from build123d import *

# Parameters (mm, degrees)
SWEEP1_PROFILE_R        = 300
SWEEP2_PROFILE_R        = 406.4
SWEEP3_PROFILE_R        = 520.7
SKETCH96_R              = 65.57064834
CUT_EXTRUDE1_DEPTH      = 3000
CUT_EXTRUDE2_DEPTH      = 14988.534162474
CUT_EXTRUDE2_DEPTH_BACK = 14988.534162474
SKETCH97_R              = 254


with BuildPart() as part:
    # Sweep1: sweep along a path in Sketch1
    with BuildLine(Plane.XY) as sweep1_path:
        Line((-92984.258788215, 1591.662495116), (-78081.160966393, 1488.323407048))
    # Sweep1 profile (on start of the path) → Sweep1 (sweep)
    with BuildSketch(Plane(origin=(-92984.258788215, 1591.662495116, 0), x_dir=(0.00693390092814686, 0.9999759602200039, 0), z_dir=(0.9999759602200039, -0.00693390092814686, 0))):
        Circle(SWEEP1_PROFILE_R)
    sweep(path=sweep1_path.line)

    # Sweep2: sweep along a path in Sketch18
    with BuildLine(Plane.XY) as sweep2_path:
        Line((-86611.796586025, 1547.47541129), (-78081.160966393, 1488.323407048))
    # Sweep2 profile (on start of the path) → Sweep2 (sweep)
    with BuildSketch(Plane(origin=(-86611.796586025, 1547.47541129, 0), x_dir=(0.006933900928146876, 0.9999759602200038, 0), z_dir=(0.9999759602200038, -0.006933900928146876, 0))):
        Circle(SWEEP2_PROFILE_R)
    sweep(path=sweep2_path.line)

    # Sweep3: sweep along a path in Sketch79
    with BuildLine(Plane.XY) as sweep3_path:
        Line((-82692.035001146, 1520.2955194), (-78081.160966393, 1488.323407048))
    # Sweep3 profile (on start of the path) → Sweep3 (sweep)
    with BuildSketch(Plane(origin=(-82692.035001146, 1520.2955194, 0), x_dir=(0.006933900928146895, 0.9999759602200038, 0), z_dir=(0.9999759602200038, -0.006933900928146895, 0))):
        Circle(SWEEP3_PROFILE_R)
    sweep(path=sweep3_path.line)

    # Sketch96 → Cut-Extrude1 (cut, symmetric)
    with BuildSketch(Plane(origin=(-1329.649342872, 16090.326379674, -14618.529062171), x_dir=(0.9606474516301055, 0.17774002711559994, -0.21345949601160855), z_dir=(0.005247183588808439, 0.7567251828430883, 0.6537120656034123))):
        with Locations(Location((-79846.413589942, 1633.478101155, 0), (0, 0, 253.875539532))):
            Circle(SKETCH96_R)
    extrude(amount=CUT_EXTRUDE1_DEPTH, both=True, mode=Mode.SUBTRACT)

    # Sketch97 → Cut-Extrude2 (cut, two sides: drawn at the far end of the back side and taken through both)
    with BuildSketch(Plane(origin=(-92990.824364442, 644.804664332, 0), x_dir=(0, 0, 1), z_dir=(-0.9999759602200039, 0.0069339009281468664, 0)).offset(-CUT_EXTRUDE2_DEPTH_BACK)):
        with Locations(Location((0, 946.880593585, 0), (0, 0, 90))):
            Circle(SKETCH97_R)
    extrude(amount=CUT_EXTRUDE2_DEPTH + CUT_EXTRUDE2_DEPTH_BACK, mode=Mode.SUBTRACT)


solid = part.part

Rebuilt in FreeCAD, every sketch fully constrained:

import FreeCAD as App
import Part
import Sketcher
from FreeCAD import Vector
Q = App.Units.Quantity

doc = App.newDocument("Part")
body = doc.addObject("PartDesign::Body", "Body")

# Sketch on an angled plane
sketch1 = doc.addObject("Sketcher::SketchObject", "Sketch")
body.addObject(sketch1)
sketch1.Placement = App.Placement(Vector(-92984.258788, 1591.662495, 0), App.Rotation(Vector(0.006933901, 0.99997596, 0), Vector(0, 0, 1), Vector(0.99997596, -0.006933901, 0), "ZXY"))
sketch1.addGeometry(Part.Circle(Vector(0, 0, 0), Vector(0, 0, 1), 300), False)
sketch1.addConstraint([
    Sketcher.Constraint("Coincident", 0, 3, -1, 1),
    Sketcher.Constraint("Diameter", 0, 600.0),
])

# Sketch on an angled plane
sketch2 = doc.addObject("Sketcher::SketchObject", "Sketch001")
body.addObject(sketch2)
sketch2.Placement = App.Placement(Vector(6.565576, 946.857831, 0), App.Rotation(Vector(0.99997596, -0.006933901, 0), Vector(0, 0, 1), Vector(-0.006933901, -0.99997596, 0), "ZXY"))
sketch2.addGeometry(Part.LineSegment(Vector(-92993.059856, 0, 0), Vector(-78089.603765, 0, 0)), False)
sketch2.addConstraint([
    Sketcher.Constraint("Horizontal", 0),
    Sketcher.Constraint("PointOnObject", 0, 1, -1),
    Sketcher.Constraint("DistanceX", 0, 1, 0, 2, 14903.456091),
    Sketcher.Constraint("DistanceX", 0, 1, -1, 1, 92993.059856),
])
doc.recompute()

additivepipe = doc.addObject("PartDesign::AdditivePipe", "AdditivePipe")
body.addObject(additivepipe)
additivepipe.Profile = sketch1
additivepipe.Spine = (sketch2, ["Edge1"])

# Sketch on an angled plane
sketch3 = doc.addObject("Sketcher::SketchObject", "Sketch002")
body.addObject(sketch3)
sketch3.Placement = App.Placement(Vector(-86611.796586, 1547.475411, 0), App.Rotation(Vector(0.006933901, 0.99997596, 0), Vector(0, 0, 1), Vector(0.99997596, -0.006933901, 0), "ZXY"))
sketch3.addGeometry(Part.Circle(Vector(0, 0, 0), Vector(0, 0, 1), 406.4), False)
sketch3.addConstraint([
    Sketcher.Constraint("Coincident", 0, 3, -1, 1),
    Sketcher.Constraint("Diameter", 0, Q("32 in")),
])

# Sketch on an angled plane
sketch4 = doc.addObject("Sketcher::SketchObject", "Sketch003")
body.addObject(sketch4)
sketch4.Placement = App.Placement(Vector(6.565576, 946.857831, 0), App.Rotation(Vector(0.99997596, -0.006933901, 0), Vector(0, 0, 1), Vector(-0.006933901, -0.99997596, 0), "ZXY"))
sketch4.addGeometry(Part.LineSegment(Vector(-86620.444461, 0, 0), Vector(-78089.603765, 0, 0)), False)
sketch4.addConstraint([
    Sketcher.Constraint("Horizontal", 0),
    Sketcher.Constraint("PointOnObject", 0, 1, -1),
    Sketcher.Constraint("DistanceX", 0, 1, 0, 2, 8530.840695),
    Sketcher.Constraint("DistanceX", 0, 1, -1, 1, 86620.444461),
])
doc.recompute()

additivepipe2 = doc.addObject("PartDesign::AdditivePipe", "AdditivePipe001")
body.addObject(additivepipe2)
additivepipe2.Profile = sketch3
additivepipe2.Spine = (sketch4, ["Edge1"])

# Sketch on an angled plane
sketch5 = doc.addObject("Sketcher::SketchObject", "Sketch004")
body.addObject(sketch5)
sketch5.Placement = App.Placement(Vector(-82692.035001, 1520.295519, 0), App.Rotation(Vector(0.006933901, 0.99997596, 0), Vector(0, 0, 1), Vector(0.99997596, -0.006933901, 0), "ZXY"))
sketch5.addGeometry(Part.Circle(Vector(0, 0, 0), Vector(0, 0, 1), 520.7), False)
sketch5.addConstraint([
    Sketcher.Constraint("Coincident", 0, 3, -1, 1),
    Sketcher.Constraint("Diameter", 0, Q("41 in")),
])

# Sketch on an angled plane
sketch6 = doc.addObject("Sketcher::SketchObject", "Sketch005")
body.addObject(sketch6)
sketch6.Placement = App.Placement(Vector(6.565576, 946.857831, 0), App.Rotation(Vector(0.99997596, -0.006933901, 0), Vector(0, 0, 1), Vector(-0.006933901, -0.99997596, 0), "ZXY"))
sketch6.addGeometry(Part.LineSegment(Vector(-82700.588645, 0, 0), Vector(-78089.603765, 0, 0)), False)
sketch6.addConstraint([
    Sketcher.Constraint("Horizontal", 0),
    Sketcher.Constraint("PointOnObject", 0, 1, -1),
    Sketcher.Constraint("DistanceX", 0, 1, 0, 2, 4610.98488),
    Sketcher.Constraint("DistanceX", 0, 1, -1, 1, 82700.588645),
])
doc.recompute()

additivepipe3 = doc.addObject("PartDesign::AdditivePipe", "AdditivePipe002")
body.addObject(additivepipe3)
additivepipe3.Profile = sketch5
additivepipe3.Spine = (sketch6, ["Edge1"])

# Sketch on an angled plane
sketch7 = doc.addObject("Sketcher::SketchObject", "Sketch006")
body.addObject(sketch7)
sketch7.Placement = App.Placement(Vector(-1329.649343, 16090.32638, -14618.529062), App.Rotation(Vector(0.960647452, 0.177740027, -0.213459496), Vector(-0.277720976, 0.629106892, -0.726013484), Vector(0.005247184, 0.756725183, 0.653712066), "ZXY"))
sketch7.addGeometry(Part.Circle(Vector(-79846.413643, 1633.478103, 0), Vector(0, 0, 1), 65.570648), False)
sketch7.addConstraint([
    Sketcher.Constraint("Diameter", 0, 131.141297),
    Sketcher.Constraint("DistanceX", 0, 3, -1, 1, 79846.413643),
    Sketcher.Constraint("DistanceY", -1, 1, 0, 3, 1633.478103),
])
pocket1 = doc.addObject("PartDesign::Pocket", "Pocket")
body.addObject(pocket1)
pocket1.Profile = sketch7
pocket1.Length = 6000
pocket1.Midplane = True

# Sketch on an angled plane
sketch8 = doc.addObject("Sketcher::SketchObject", "Sketch007")
body.addObject(sketch8)
sketch8.Placement = App.Placement(Vector(-92990.824361, 644.804665, 0), App.Rotation(Vector(0, 0, 1), Vector(0.006933901, 0.99997596, 0), Vector(-0.99997596, 0.006933901, 0), "ZXY"))
sketch8.addGeometry(Part.Circle(Vector(0, 946.880593, 0), Vector(0, 0, 1), 254), False)
sketch8.addConstraint([
    Sketcher.Constraint("PointOnObject", 0, 3, -2),
    Sketcher.Constraint("Diameter", 0, Q("20 in")),
    Sketcher.Constraint("DistanceY", -1, 1, 0, 3, 946.880593),
])
pocket2 = doc.addObject("PartDesign::Pocket", "Pocket001")
body.addObject(pocket2)
pocket2.Profile = sketch8
pocket2.Type = "ThroughAll"
pocket2.Midplane = True

doc.recompute()
